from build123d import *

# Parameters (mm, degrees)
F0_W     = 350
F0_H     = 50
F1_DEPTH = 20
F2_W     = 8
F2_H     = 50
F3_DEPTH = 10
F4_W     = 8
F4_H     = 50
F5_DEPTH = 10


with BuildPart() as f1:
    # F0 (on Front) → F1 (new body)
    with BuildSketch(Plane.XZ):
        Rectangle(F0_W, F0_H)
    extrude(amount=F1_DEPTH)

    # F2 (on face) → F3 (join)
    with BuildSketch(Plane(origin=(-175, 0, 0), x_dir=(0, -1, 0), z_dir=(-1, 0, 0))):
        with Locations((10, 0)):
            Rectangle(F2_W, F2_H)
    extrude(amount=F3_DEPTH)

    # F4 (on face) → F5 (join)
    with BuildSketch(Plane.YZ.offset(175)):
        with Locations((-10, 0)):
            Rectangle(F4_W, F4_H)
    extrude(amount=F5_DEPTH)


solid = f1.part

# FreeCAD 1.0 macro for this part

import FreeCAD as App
import Part
import Sketcher
Q = App.Units.Quantity


def add_polygon(sketch, points):
    """Adds a closed chain of lines whose ends are joined by coincident constraints."""
    first, n = sketch.GeometryCount, len(points)
    for a, b in zip(points, points[1:] + points[:1]):
        sketch.addGeometry(Part.LineSegment(App.Vector(*a, 0), App.Vector(*b, 0)), False)
    for i in range(n):
        sketch.addConstraint(Sketcher.Constraint("Coincident", first + i, 2, first + (i + 1) % n, 1))

doc = App.newDocument("Part")
params = doc.addObject("Spreadsheet::Sheet", "Params")
for row, (alias, value) in enumerate([
    ("sketch1_width", "350 mm"),
    ("sketch1_height", "50 mm"),
    ("pad1_length", "20 mm"),
    ("sketch2_width", "8 mm"),
    ("sketch2_height", "50 mm"),
    ("pad2_length", "10 mm"),
    ("sketch3_width", "8 mm"),
    ("sketch3_height", "50 mm"),
    ("pad3_length", "10 mm"),
], start=1):
    params.set(f"A{row}", alias)
    params.set(f"B{row}", "=" + value)
    params.setAlias(f"B{row}", alias)

body = doc.addObject("PartDesign::Body", "Body")

sketch1 = body.newObject("Sketcher::SketchObject", "Sketch")
sketch1.AttachmentSupport = (doc.getObject("XZ_Plane"), [""])
sketch1.MapMode = "FlatFace"
add_polygon(sketch1, [(-175, 25), (-175, -25), (175, -25), (175, 25)])
sketch1.addConstraint([
    Sketcher.Constraint("Vertical", 0),
    Sketcher.Constraint("Horizontal", 1),
    Sketcher.Constraint("Vertical", 2),
    Sketcher.Constraint("Horizontal", 3),
    Sketcher.Constraint("Symmetric", 0, 2, 2, 2, -1, 1),
    Sketcher.Constraint("DistanceX", 1, 1, 1, 2, Q("350 mm")),
    Sketcher.Constraint("DistanceY", 0, 2, 0, 1, Q("50 mm")),
])
sketch1.setExpression("Constraints[9]", "Params.sketch1_width")
sketch1.setExpression("Constraints[10]", "Params.sketch1_height")
pad1 = body.newObject("PartDesign::Pad", "Pad")
pad1.Profile = sketch1
pad1.setExpression("Length", "Params.pad1_length")

sketch2 = body.newObject("Sketcher::SketchObject", "Sketch001")
sketch2.AttachmentSupport = (doc.getObject("YZ_Plane"), [""])
sketch2.MapMode = "FlatFace"
sketch2.AttachmentOffset = App.Placement(App.Vector(0, 0, -175), App.Rotation())
add_polygon(sketch2, [(-6, 25), (-6, -25), (-14, -25), (-14, 25)])
sketch2.addConstraint([
    Sketcher.Constraint("Vertical", 0),
    Sketcher.Constraint("Horizontal", 1),
    Sketcher.Constraint("Vertical", 2),
    Sketcher.Constraint("Horizontal", 3),
    Sketcher.Constraint("DistanceX", 1, 2, 1, 1, Q("8 mm")),
    Sketcher.Constraint("DistanceY", 0, 2, 0, 1, Q("50 mm")),
    Sketcher.Constraint("DistanceX", 0, 2, -1, 1, Q("6 mm")),
    Sketcher.Constraint("DistanceY", 0, 2, -1, 1, Q("25 mm")),
])
sketch2.setExpression("Constraints[8]", "Params.sketch2_width")
sketch2.setExpression("Constraints[9]", "Params.sketch2_height")
pad2 = body.newObject("PartDesign::Pad", "Pad001")
pad2.Profile = sketch2
pad2.setExpression("Length", "Params.pad2_length")
pad2.Reversed = True

sketch3 = body.newObject("Sketcher::SketchObject", "Sketch002")
sketch3.AttachmentSupport = (doc.getObject("YZ_Plane"), [""])
sketch3.MapMode = "FlatFace"
sketch3.AttachmentOffset = App.Placement(App.Vector(0, 0, 175), App.Rotation())
add_polygon(sketch3, [(-14, 25), (-14, -25), (-6, -25), (-6, 25)])
sketch3.addConstraint([
    Sketcher.Constraint("Vertical", 0),
    Sketcher.Constraint("Horizontal", 1),
    Sketcher.Constraint("Vertical", 2),
    Sketcher.Constraint("Horizontal", 3),
    Sketcher.Constraint("DistanceX", 1, 1, 1, 2, Q("8 mm")),
    Sketcher.Constraint("DistanceY", 0, 2, 0, 1, Q("50 mm")),
    Sketcher.Constraint("DistanceX", 0, 2, -1, 1, Q("14 mm")),
    Sketcher.Constraint("DistanceY", 0, 2, -1, 1, Q("25 mm")),
])
sketch3.setExpression("Constraints[8]", "Params.sketch3_width")
sketch3.setExpression("Constraints[9]", "Params.sketch3_height")
pad3 = body.newObject("PartDesign::Pad", "Pad002")
pad3.Profile = sketch3
pad3.setExpression("Length", "Params.pad3_length")

doc.recompute()
